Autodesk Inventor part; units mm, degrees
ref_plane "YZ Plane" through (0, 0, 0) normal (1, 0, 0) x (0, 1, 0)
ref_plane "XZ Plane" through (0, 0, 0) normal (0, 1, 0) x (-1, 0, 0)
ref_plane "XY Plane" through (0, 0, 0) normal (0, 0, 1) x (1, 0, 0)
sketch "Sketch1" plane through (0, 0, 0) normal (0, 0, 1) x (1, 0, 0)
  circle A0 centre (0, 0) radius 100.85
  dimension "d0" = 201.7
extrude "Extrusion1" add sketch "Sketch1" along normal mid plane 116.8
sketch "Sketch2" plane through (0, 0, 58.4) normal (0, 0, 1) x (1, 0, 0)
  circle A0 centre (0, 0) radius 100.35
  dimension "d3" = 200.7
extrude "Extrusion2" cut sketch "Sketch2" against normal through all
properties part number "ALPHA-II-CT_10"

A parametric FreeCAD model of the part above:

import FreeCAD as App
import Part
import Sketcher

V = App.Vector

doc = App.newDocument("Part")
body = doc.addObject("PartDesign::Body", "Body")

# Sketch on XY plane
sketch1 = body.newObject("Sketcher::SketchObject", "Sketch")
sketch1.AttachmentSupport = (doc.getObject("XY_Plane"), [""])
sketch1.MapMode = "FlatFace"
sketch1.addGeometry(Part.Circle(V(0, 0, 0), V(0, 0, 1), 101), False)
sketch1.addConstraint([
    Sketcher.Constraint("Coincident", 0, 3, -1, 1),
    Sketcher.Constraint("Diameter", 0, 201.7),
])
pad1 = body.newObject("PartDesign::Pad", "Pad")
pad1.Profile = sketch1
pad1.Length = 116.8
pad1.Midplane = True

# Sketch on XY plane
sketch2 = body.newObject("Sketcher::SketchObject", "Sketch001")
sketch2.AttachmentSupport = (doc.getObject("XY_Plane"), [""])
sketch2.MapMode = "FlatFace"
sketch2.AttachmentOffset = App.Placement(V(0, 0, 58.4), App.Rotation())
sketch2.addGeometry(Part.Circle(V(0, 0, 0), V(0, 0, 1), 100), False)
sketch2.addConstraint([
    Sketcher.Constraint("Coincident", 0, 3, -1, 1),
    Sketcher.Constraint("Diameter", 0, 200.7),
])
pocket1 = body.newObject("PartDesign::Pocket", "Pocket")
pocket1.Profile = sketch2
pocket1.Type = "ThroughAll"

doc.recompute()
